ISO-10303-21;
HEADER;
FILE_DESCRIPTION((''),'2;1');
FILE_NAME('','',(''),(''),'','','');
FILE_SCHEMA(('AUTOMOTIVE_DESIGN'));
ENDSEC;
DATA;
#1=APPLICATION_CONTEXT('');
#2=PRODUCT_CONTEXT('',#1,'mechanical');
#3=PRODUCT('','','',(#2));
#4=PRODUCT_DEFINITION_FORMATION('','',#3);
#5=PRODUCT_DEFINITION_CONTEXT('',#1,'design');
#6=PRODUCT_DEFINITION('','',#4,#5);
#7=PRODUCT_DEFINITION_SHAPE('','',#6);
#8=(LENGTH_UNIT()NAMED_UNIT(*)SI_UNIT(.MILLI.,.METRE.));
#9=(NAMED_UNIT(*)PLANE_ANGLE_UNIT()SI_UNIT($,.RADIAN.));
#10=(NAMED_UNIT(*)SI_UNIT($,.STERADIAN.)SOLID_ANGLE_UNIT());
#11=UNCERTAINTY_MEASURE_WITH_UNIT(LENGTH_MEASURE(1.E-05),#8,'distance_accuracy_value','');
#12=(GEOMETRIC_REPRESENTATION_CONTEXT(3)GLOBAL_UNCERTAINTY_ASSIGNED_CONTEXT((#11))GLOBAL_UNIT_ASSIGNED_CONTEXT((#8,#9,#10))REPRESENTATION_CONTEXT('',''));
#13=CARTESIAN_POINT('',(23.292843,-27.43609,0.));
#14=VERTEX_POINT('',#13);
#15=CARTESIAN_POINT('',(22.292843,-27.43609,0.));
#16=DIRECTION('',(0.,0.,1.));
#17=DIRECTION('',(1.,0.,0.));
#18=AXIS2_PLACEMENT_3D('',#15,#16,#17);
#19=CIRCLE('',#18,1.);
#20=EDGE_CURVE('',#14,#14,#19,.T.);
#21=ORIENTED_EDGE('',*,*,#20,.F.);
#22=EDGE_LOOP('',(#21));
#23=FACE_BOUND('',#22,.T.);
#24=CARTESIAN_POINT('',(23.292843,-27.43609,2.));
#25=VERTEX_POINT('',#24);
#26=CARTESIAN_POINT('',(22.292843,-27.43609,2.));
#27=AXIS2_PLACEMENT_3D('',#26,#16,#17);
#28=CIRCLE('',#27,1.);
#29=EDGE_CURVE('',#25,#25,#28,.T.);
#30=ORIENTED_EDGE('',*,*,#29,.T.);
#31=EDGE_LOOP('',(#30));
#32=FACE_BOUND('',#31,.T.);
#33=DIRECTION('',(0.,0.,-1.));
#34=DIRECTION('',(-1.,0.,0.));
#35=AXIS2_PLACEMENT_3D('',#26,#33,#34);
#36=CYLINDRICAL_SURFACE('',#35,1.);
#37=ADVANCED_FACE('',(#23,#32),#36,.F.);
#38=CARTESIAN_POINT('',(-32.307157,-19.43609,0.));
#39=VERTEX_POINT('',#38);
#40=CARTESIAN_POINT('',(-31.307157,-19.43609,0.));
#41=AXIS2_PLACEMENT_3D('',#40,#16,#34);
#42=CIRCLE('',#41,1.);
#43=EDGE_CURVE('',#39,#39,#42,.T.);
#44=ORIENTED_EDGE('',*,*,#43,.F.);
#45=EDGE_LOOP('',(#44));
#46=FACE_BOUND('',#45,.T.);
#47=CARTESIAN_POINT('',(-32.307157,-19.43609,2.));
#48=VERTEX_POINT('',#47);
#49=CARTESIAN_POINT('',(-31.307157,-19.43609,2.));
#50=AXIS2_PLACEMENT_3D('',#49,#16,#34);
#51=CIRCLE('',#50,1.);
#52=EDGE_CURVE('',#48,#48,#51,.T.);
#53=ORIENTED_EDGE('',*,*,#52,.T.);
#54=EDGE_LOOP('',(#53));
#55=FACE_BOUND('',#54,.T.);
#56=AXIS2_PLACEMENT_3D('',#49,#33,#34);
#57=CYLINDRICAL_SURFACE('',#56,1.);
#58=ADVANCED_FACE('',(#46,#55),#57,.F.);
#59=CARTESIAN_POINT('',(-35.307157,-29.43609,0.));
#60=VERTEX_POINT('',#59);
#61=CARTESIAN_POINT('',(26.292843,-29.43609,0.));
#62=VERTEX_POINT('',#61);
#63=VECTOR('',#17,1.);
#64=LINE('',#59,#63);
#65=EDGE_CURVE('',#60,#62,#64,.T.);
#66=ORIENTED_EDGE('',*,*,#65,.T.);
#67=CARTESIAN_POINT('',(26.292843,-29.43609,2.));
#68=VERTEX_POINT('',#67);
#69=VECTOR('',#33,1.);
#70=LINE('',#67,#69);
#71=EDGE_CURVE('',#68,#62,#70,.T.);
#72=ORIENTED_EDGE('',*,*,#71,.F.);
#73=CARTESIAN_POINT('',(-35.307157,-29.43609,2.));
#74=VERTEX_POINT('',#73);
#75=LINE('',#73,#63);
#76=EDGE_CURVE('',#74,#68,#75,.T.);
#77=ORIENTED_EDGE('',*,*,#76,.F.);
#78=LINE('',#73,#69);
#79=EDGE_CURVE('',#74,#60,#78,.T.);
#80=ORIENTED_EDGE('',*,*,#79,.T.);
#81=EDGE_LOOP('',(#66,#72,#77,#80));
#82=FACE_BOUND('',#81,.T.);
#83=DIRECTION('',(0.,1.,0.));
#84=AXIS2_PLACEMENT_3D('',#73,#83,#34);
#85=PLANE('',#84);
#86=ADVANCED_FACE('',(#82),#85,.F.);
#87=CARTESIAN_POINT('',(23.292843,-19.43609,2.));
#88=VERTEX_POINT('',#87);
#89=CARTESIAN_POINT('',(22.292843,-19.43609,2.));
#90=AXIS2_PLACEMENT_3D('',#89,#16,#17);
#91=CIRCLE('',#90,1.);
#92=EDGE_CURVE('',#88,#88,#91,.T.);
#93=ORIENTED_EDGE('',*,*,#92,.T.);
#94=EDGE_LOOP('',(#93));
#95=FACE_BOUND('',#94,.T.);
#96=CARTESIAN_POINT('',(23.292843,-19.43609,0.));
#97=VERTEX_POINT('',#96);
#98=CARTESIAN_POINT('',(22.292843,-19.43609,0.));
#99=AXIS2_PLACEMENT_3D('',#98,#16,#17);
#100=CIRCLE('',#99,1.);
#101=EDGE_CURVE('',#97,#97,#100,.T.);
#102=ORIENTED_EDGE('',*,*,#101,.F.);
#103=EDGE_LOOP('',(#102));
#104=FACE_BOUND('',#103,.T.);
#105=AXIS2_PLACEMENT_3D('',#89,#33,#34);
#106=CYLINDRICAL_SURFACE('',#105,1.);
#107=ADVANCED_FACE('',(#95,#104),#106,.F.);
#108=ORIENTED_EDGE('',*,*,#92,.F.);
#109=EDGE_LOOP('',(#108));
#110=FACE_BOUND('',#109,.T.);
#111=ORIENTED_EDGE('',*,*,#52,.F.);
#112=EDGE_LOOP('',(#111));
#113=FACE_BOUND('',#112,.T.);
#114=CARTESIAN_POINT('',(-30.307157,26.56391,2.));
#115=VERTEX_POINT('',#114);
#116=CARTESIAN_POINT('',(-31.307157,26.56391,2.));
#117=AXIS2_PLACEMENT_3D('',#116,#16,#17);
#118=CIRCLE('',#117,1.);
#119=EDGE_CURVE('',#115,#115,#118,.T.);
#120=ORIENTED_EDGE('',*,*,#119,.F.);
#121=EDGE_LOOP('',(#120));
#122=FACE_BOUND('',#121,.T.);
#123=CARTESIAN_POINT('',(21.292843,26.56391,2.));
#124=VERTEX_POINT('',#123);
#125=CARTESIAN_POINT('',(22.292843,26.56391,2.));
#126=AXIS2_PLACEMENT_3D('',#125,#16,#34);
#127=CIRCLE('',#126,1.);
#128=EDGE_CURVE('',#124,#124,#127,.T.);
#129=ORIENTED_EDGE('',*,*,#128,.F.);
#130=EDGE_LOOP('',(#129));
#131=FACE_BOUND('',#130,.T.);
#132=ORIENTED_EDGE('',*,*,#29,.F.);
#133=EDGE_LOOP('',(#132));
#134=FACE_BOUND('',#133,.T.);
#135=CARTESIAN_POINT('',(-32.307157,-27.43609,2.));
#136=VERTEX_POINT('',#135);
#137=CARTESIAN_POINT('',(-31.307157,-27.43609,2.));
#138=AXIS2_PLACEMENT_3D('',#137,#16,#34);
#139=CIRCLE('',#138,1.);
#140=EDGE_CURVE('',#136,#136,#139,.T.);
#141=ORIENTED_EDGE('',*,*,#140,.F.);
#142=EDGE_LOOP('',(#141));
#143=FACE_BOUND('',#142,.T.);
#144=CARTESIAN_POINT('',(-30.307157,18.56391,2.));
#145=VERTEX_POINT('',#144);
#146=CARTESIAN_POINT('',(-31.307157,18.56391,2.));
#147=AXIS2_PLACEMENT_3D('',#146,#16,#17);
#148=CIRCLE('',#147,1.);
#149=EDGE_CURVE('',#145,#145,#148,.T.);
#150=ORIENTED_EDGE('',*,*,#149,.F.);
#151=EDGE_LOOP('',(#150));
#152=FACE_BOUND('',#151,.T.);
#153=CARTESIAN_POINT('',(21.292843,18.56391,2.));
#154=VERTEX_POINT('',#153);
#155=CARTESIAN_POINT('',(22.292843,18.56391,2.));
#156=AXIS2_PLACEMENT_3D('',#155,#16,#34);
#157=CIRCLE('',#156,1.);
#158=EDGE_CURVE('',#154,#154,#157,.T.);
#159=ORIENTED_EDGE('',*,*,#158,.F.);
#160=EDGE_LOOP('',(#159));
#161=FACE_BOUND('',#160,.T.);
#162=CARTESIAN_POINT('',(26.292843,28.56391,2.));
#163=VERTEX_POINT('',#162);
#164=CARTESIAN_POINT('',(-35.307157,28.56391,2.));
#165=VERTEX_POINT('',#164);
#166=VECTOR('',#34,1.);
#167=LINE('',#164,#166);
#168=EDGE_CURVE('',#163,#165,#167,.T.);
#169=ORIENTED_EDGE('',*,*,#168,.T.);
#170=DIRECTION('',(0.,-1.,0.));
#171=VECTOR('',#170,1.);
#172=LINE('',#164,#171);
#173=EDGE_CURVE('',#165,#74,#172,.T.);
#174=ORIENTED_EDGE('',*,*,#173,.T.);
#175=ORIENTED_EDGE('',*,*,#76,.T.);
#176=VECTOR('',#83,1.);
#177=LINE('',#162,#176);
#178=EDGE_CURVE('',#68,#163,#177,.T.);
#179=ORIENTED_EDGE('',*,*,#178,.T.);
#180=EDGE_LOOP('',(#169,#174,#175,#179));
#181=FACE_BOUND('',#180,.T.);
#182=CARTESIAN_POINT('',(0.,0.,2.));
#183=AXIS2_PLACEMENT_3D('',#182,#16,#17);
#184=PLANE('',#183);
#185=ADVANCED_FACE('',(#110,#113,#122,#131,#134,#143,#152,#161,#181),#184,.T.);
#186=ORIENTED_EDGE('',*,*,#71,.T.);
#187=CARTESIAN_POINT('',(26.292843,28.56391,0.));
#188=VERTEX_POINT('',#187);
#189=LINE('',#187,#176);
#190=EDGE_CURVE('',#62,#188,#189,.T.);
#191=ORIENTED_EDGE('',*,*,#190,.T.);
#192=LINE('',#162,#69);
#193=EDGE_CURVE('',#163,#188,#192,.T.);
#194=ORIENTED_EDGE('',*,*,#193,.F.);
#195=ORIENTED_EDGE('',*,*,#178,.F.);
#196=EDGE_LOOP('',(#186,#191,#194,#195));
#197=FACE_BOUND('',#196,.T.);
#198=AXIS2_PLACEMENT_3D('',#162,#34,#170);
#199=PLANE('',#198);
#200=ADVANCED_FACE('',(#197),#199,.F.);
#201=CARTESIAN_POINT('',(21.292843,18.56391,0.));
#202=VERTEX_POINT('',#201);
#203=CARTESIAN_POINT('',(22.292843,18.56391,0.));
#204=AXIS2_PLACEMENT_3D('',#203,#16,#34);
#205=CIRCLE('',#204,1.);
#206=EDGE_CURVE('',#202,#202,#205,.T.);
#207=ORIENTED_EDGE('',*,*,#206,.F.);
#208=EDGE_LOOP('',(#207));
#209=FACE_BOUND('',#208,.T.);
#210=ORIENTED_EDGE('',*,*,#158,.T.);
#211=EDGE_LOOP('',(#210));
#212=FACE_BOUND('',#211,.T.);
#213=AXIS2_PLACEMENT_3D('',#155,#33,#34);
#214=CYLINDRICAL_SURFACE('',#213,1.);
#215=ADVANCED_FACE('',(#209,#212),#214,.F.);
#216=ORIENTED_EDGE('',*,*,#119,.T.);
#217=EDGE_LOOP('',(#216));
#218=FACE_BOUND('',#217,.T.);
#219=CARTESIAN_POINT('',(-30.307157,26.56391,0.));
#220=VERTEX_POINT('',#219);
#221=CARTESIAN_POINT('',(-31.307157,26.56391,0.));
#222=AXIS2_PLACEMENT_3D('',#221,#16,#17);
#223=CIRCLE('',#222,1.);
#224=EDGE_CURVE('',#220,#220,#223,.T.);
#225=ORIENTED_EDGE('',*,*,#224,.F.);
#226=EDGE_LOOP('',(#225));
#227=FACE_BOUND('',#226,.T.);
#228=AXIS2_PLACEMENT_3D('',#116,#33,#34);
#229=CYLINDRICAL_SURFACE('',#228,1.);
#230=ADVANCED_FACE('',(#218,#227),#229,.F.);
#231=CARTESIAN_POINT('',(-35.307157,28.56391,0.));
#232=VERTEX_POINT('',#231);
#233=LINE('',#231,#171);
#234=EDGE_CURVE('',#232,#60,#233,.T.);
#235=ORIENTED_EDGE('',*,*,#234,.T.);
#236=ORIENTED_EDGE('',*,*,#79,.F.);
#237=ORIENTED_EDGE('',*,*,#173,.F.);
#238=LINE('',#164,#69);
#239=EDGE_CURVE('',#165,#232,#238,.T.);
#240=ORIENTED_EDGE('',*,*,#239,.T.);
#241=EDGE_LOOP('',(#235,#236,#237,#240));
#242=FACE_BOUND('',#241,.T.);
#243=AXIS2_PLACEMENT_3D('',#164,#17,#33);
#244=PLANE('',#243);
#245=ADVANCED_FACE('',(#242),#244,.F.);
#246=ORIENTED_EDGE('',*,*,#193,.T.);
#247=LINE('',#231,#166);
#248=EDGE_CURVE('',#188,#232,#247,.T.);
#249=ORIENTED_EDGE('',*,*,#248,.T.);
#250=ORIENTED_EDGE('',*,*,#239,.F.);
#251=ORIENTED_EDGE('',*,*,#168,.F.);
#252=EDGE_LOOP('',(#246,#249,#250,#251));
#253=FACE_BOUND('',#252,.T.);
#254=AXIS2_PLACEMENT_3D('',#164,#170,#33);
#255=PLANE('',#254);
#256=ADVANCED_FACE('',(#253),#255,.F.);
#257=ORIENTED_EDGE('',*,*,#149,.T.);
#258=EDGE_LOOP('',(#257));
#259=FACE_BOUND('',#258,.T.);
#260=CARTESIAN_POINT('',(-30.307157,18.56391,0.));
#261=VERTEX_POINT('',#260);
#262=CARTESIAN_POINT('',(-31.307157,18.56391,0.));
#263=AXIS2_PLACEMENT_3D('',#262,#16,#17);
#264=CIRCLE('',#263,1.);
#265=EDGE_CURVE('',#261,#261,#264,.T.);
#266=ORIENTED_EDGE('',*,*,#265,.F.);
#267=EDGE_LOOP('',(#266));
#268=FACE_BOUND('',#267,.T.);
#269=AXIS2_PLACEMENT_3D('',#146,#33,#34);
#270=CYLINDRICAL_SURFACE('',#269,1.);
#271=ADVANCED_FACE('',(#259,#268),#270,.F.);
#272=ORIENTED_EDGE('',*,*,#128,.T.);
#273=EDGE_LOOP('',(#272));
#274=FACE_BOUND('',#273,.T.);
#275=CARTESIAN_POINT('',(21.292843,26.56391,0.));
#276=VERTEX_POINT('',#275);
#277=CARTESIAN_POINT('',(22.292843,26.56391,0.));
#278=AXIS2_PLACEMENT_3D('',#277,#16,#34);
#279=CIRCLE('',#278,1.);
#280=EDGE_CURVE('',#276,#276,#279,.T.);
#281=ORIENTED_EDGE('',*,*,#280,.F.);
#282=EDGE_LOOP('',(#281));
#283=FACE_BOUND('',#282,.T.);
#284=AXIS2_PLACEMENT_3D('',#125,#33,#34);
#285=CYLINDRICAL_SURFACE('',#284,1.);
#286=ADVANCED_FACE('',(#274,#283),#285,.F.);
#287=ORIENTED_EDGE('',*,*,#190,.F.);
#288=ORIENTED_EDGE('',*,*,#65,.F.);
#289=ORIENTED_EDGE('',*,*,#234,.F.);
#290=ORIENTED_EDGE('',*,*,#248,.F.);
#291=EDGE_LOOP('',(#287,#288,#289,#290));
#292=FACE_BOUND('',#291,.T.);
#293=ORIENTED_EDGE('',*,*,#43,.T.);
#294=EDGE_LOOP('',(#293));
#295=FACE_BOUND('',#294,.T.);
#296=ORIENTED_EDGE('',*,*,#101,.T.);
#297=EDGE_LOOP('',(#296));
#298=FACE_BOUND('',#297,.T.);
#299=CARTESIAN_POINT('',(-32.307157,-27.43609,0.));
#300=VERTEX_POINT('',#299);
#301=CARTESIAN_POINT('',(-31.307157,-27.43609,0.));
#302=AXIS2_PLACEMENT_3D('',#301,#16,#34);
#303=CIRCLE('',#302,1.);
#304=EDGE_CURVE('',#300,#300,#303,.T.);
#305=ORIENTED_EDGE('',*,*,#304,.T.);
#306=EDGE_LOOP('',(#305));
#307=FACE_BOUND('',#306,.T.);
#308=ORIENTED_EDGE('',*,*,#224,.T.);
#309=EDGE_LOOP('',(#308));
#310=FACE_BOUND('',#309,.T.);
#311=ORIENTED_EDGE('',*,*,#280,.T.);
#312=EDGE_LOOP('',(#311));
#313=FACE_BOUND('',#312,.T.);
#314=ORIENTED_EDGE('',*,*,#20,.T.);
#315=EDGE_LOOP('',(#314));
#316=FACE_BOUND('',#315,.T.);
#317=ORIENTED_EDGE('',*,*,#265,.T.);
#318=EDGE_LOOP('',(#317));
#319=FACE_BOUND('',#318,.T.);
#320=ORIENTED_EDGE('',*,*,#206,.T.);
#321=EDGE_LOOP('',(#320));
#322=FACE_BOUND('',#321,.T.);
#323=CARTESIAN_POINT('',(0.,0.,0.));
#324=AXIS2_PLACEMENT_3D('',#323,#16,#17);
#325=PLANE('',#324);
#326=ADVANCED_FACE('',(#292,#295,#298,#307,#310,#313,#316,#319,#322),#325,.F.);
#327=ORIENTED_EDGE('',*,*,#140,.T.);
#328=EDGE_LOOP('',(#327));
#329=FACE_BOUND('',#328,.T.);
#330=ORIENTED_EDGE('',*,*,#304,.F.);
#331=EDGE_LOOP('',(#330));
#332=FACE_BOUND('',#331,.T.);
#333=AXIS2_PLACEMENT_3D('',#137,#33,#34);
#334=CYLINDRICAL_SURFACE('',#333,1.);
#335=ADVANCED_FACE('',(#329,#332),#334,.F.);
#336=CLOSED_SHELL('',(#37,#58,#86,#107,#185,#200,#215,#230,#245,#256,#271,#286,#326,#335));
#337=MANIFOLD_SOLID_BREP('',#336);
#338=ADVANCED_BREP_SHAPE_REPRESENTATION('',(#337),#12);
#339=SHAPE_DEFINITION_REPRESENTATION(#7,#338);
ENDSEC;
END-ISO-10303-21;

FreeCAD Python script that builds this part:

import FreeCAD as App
import Part
import Sketcher


def add_polygon(sketch, points):
    """Adds a closed chain of lines whose ends are joined by coincident constraints."""
    first, n = sketch.GeometryCount, len(points)
    for a, b in zip(points, points[1:] + points[:1]):
        sketch.addGeometry(Part.LineSegment(App.Vector(*a, 0), App.Vector(*b, 0)), False)
    for i in range(n):
        sketch.addConstraint(Sketcher.Constraint("Coincident", first + i, 2, first + (i + 1) % n, 1))

doc = App.newDocument("Part")
body = doc.addObject("PartDesign::Body", "Body")

sketch1 = body.newObject("Sketcher::SketchObject", "Sketch")
sketch1.AttachmentSupport = (doc.getObject("XY_Plane"), [""])
sketch1.MapMode = "FlatFace"
add_polygon(sketch1, [(-35.3, 28.6), (-35.3, -29.4), (26.3, -29.4), (26.3, 28.6)])
sketch1.addGeometry(Part.Circle(App.Vector(-31.3, -27.4, 0), App.Vector(0, 0, 1), 1), False)
sketch1.addGeometry(Part.Circle(App.Vector(-31.3, -19.4, 0), App.Vector(0, 0, 1), 1), False)
sketch1.addGeometry(Part.Circle(App.Vector(22.3, -27.4, 0), App.Vector(0, 0, 1), 1), False)
sketch1.addGeometry(Part.Circle(App.Vector(22.3, -19.4, 0), App.Vector(0, 0, 1), 1), False)
sketch1.addGeometry(Part.Circle(App.Vector(-31.3, 18.6, 0), App.Vector(0, 0, 1), 1), False)
sketch1.addGeometry(Part.Circle(App.Vector(-31.3, 26.6, 0), App.Vector(0, 0, 1), 1), False)
sketch1.addGeometry(Part.Circle(App.Vector(22.3, 18.6, 0), App.Vector(0, 0, 1), 1), False)
sketch1.addGeometry(Part.Circle(App.Vector(22.3, 26.6, 0), App.Vector(0, 0, 1), 1), False)
sketch1.addConstraint(Sketcher.Constraint("Vertical", 0))
sketch1.addConstraint(Sketcher.Constraint("Horizontal", 1))
sketch1.addConstraint(Sketcher.Constraint("Vertical", 2))
sketch1.addConstraint(Sketcher.Constraint("Horizontal", 3))
sketch1.addConstraint(Sketcher.Constraint("Equal", 4, 5))
sketch1.addConstraint(Sketcher.Constraint("Equal", 5, 6))
sketch1.addConstraint(Sketcher.Constraint("Equal", 6, 7))
sketch1.addConstraint(Sketcher.Constraint("Equal", 7, 8))
sketch1.addConstraint(Sketcher.Constraint("Equal", 8, 9))
sketch1.addConstraint(Sketcher.Constraint("Equal", 9, 10))
sketch1.addConstraint(Sketcher.Constraint("Equal", 10, 11))
sketch1.addConstraint(Sketcher.Constraint("Horizontal", 4, 3, 6, 3))
sketch1.addConstraint(Sketcher.Constraint("Horizontal", 5, 3, 7, 3))
sketch1.addConstraint(Sketcher.Constraint("Horizontal", 8, 3, 10, 3))
sketch1.addConstraint(Sketcher.Constraint("Horizontal", 9, 3, 11, 3))
sketch1.addConstraint(Sketcher.Constraint("Vertical", 4, 3, 5, 3))
sketch1.addConstraint(Sketcher.Constraint("Vertical", 6, 3, 7, 3))
sketch1.addConstraint(Sketcher.Constraint("Vertical", 5, 3, 8, 3))
sketch1.addConstraint(Sketcher.Constraint("Vertical", 8, 3, 9, 3))
sketch1.addConstraint(Sketcher.Constraint("Vertical", 7, 3, 10, 3))
sketch1.addConstraint(Sketcher.Constraint("Vertical", 10, 3, 11, 3))
sketch1.addConstraint(Sketcher.Constraint("Diameter", 4, 2.0))
sketch1.addConstraint(Sketcher.Constraint("DistanceY", 0, 2, 0, 1, 58.0))
sketch1.addConstraint(Sketcher.Constraint("DistanceX", 1, 1, 1, 2, 61.6))
sketch1.addConstraint(Sketcher.Constraint("DistanceY", 4, 3, 5, 3, 8.0))
sketch1.addConstraint(Sketcher.Constraint("DistanceY", 5, 3, 8, 3, 38.0))
sketch1.addConstraint(Sketcher.Constraint("DistanceY", 8, 3, 9, 3, 8.0))
sketch1.addConstraint(Sketcher.Constraint("DistanceX", 0, 2, 4, 3, 4.0))
sketch1.addConstraint(Sketcher.Constraint("DistanceY", 0, 2, 4, 3, 2.0))
sketch1.addConstraint(Sketcher.Constraint("DistanceX", 6, 3, 1, 2, 4.0))
sketch1.addConstraint(Sketcher.Constraint("DistanceY", 4, 3, -1, 1, 27.43609))
sketch1.addConstraint(Sketcher.Constraint("DistanceX", 4, 3, -1, 1, 31.307157))
pad1 = body.newObject("PartDesign::Pad", "Pad")
pad1.Profile = sketch1
pad1.Length = 2

doc.recompute()
